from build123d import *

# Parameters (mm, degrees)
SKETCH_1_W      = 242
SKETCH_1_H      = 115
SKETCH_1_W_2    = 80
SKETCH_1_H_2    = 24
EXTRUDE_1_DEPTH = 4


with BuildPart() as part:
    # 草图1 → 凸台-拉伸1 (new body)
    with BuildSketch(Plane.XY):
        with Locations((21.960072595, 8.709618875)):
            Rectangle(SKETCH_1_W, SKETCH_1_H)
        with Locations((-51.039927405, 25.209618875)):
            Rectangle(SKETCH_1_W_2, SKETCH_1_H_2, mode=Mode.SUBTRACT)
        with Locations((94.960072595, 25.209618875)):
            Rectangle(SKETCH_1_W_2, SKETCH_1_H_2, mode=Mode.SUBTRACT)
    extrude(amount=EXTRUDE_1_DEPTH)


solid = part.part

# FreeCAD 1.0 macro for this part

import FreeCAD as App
import Part
import Sketcher

V = App.Vector


def add_polygon(sketch, points):
    """Adds a closed chain of lines whose ends are joined by coincident constraints."""
    first, n = sketch.GeometryCount, len(points)
    for a, b in zip(points, points[1:] + points[:1]):
        sketch.addGeometry(Part.LineSegment(App.Vector(*a, 0), App.Vector(*b, 0)), False)
    for i in range(n):
        sketch.addConstraint(Sketcher.Constraint("Coincident", first + i, 2, first + (i + 1) % n, 1))

doc = App.newDocument("Part")
body = doc.addObject("PartDesign::Body", "Body")

sketch1 = body.newObject("Sketcher::SketchObject", "Sketch")
sketch1.AttachmentSupport = (doc.getObject("XY_Plane"), [""])
sketch1.MapMode = "FlatFace"
add_polygon(sketch1, [(-99.039927, 66.209619), (-99.039927, -48.790381), (142.960073, -48.790381), (142.960073, 66.209619)])
add_polygon(sketch1, [(-11.039927, 13.209619), (-91.039927, 13.209619), (-91.039927, 37.209619), (-11.039927, 37.209619)])
add_polygon(sketch1, [(134.960073, 13.209619), (54.960073, 13.209619), (54.960073, 37.209619), (134.960073, 37.209619)])
sketch1.addConstraint([
    Sketcher.Constraint("Vertical", 0),
    Sketcher.Constraint("Horizontal", 1),
    Sketcher.Constraint("Vertical", 2),
    Sketcher.Constraint("Horizontal", 3),
    Sketcher.Constraint("Horizontal", 4),
    Sketcher.Constraint("Vertical", 5),
    Sketcher.Constraint("Horizontal", 6),
    Sketcher.Constraint("Vertical", 7),
    Sketcher.Constraint("Horizontal", 8),
    Sketcher.Constraint("Vertical", 9),
    Sketcher.Constraint("Horizontal", 10),
    Sketcher.Constraint("Vertical", 11),
    Sketcher.Constraint("Horizontal", 7, 2, 8, 2),
    Sketcher.Constraint("Horizontal", 6, 2, 9, 2),
    Sketcher.Constraint("Equal", 6, 8),
    Sketcher.Constraint("DistanceX", 1, 1, 1, 2, 242.0),
    Sketcher.Constraint("DistanceX", 4, 2, 4, 1, 80.0),
    Sketcher.Constraint("DistanceY", 0, 2, 0, 1, 115.0),
    Sketcher.Constraint("DistanceY", 5, 1, 5, 2, 24.0),
    Sketcher.Constraint("DistanceX", 3, 2, 4, 2, 8.0),
    Sketcher.Constraint("DistanceY", 4, 2, 3, 2, 53.0),
    Sketcher.Constraint("DistanceX", 7, 2, 8, 2, 66.0),
    Sketcher.Constraint("DistanceY", 0, 2, -1, 1, 48.790381),
    Sketcher.Constraint("DistanceX", 0, 2, -1, 1, 99.039927),
])
pad1 = body.newObject("PartDesign::Pad", "Pad")
pad1.Profile = sketch1
pad1.Length = 4

doc.recompute()
